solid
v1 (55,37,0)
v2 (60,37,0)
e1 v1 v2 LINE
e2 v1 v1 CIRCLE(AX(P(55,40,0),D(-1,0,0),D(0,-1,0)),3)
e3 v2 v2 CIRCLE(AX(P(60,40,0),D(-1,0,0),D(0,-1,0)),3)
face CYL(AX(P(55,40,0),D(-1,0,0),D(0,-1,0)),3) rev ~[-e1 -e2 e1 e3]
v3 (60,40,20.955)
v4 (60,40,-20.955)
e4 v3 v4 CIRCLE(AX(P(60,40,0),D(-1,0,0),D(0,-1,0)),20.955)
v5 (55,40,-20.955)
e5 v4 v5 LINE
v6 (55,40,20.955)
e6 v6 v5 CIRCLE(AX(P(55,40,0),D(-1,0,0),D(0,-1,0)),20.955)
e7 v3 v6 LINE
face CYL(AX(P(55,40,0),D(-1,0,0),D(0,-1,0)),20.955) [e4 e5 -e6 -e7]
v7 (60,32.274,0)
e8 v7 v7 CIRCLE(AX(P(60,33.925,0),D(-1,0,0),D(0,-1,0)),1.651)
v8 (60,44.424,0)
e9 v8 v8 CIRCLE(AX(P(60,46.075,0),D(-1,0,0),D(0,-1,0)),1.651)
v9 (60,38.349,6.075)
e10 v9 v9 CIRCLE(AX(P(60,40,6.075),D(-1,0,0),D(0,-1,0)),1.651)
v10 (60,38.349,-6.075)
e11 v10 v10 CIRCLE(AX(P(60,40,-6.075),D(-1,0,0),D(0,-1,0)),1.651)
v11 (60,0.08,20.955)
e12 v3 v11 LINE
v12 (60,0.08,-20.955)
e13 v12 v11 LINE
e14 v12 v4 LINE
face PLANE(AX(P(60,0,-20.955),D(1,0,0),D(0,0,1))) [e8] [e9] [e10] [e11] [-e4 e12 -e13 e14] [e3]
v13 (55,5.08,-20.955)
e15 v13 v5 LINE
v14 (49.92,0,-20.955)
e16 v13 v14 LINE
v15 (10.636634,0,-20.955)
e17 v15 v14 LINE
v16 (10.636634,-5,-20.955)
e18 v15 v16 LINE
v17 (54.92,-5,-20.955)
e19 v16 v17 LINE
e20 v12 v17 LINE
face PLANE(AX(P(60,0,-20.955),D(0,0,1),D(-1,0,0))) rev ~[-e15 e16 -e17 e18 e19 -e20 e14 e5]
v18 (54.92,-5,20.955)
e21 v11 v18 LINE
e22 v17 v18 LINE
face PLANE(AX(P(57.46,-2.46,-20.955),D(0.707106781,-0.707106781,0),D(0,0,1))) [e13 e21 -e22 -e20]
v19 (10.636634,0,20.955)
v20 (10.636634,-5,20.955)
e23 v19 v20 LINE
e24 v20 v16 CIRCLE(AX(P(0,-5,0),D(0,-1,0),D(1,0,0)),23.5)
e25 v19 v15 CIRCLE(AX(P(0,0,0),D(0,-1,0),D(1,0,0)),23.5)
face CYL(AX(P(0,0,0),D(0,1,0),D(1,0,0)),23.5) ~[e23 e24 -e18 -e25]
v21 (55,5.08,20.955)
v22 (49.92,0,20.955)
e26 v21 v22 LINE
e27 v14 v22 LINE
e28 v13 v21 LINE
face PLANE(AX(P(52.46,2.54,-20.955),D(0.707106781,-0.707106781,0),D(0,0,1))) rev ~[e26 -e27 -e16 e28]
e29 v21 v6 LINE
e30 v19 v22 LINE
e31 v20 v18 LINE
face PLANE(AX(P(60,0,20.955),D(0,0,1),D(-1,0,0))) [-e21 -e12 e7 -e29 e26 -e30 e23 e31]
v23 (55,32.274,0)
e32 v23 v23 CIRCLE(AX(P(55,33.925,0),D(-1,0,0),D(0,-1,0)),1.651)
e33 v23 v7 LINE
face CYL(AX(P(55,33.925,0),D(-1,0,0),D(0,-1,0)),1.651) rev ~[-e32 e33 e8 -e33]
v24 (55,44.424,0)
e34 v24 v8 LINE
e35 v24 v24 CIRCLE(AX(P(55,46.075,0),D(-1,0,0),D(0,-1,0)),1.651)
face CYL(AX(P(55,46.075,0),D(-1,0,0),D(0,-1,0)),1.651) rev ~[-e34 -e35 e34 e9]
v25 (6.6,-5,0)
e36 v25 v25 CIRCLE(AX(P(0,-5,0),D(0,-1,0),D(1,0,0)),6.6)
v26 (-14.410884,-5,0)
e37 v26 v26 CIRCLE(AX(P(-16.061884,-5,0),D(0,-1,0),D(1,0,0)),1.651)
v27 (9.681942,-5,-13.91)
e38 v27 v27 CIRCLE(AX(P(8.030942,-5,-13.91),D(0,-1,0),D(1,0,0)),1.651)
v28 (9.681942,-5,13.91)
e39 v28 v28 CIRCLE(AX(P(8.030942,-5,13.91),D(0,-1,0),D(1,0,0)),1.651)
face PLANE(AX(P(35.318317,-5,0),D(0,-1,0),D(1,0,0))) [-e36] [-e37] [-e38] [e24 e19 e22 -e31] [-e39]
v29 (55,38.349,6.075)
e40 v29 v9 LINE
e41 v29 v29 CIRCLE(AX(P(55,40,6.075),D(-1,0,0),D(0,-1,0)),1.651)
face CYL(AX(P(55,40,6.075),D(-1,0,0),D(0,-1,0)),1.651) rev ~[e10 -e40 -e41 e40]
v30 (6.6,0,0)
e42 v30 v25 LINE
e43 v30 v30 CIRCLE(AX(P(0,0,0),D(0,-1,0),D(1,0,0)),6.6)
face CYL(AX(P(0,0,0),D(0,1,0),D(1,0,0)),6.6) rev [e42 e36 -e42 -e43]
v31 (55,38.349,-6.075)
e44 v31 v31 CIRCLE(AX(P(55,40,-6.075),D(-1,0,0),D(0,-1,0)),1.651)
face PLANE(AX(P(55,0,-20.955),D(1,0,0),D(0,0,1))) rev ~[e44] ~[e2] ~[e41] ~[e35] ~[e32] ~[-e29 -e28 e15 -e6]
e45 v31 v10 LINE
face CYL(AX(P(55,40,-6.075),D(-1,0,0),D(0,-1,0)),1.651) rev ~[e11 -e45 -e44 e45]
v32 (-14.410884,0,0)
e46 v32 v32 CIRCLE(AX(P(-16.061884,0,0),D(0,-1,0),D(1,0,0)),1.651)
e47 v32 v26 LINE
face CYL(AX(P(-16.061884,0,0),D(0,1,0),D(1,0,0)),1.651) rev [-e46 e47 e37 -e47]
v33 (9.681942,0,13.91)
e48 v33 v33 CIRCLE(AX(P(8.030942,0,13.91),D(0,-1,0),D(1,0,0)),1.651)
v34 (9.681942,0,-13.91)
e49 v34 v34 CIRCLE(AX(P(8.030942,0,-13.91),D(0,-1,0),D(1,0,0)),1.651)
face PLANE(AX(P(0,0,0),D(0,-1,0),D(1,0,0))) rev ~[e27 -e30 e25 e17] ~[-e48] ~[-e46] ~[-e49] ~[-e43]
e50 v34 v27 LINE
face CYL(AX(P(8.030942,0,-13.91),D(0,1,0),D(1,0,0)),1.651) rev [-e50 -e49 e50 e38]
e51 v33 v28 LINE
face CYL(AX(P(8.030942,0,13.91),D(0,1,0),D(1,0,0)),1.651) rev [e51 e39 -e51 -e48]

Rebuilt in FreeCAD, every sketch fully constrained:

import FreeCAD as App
import Part
import Sketcher
from FreeCAD import Vector


def edges_at(feature, points):
    """Names of the edges that pass closest to the given points."""
    edges = feature.Shape.Edges
    near = lambda p: min(range(len(edges)), key=lambda i: edges[i].distToShape(Part.Vertex(*p))[0])
    return sorted({f"Edge{near(p) + 1}" for p in points})

doc = App.newDocument("Part")
body = doc.addObject("PartDesign::Body", "Body")

# Sketch on XZ plane
sketch1 = body.newObject("Sketcher::SketchObject", "Sketch")
sketch1.AttachmentSupport = (doc.getObject("XZ_Plane"), [""])
sketch1.MapMode = "FlatFace"
sketch1.addGeometry(Part.Circle(Vector(0, 0, 0), Vector(0, 0, 1), 23.5), False)
sketch1.addGeometry(Part.Circle(Vector(8, -13.9, 0), Vector(0, 0, 1), 1.7), False)
sketch1.addGeometry(Part.Circle(Vector(-16.1, 0, 0), Vector(0, 0, 1), 1.7), False)
sketch1.addGeometry(Part.Circle(Vector(0, 0, 0), Vector(0, 0, 1), 6.6), False)
sketch1.addGeometry(Part.Circle(Vector(8, 13.9, 0), Vector(0, 0, 1), 1.7), False)
sketch1.addConstraint(Sketcher.Constraint("Coincident", 0, 3, -1, 1))
sketch1.addConstraint(Sketcher.Constraint("Coincident", 3, 3, -1, 1))
sketch1.addConstraint(Sketcher.Constraint("Equal", 1, 2))
sketch1.addConstraint(Sketcher.Constraint("Equal", 2, 4))
sketch1.addConstraint(Sketcher.Constraint("Symmetric", 1, 3, 4, 3, -1))
sketch1.addConstraint(Sketcher.Constraint("PointOnObject", 2, 3, -1))
sketch1.addConstraint(Sketcher.Constraint("Diameter", 0, 47.0))
sketch1.addConstraint(Sketcher.Constraint("Diameter", 3, 13.2))
sketch1.addConstraint(Sketcher.Constraint("Diameter", 1, 3.302))
sketch1.addConstraint(Sketcher.Constraint("DistanceY", 1, 3, -1, 1, 13.91))
sketch1.addConstraint(Sketcher.Constraint("DistanceX", -1, 1, 1, 3, 8.030942))
sketch1.addConstraint(Sketcher.Constraint("DistanceX", 2, 3, -1, 1, 16.061884))
pad1 = body.newObject("PartDesign::Pad", "Pad")
pad1.Profile = sketch1
pad1.Length = 5

# Sketch on XZ plane
sketch2 = body.newObject("Sketcher::SketchObject", "Sketch001")
sketch2.AttachmentSupport = (doc.getObject("XZ_Plane"), [""])
sketch2.MapMode = "FlatFace"
sketch2.addGeometry(Part.LineSegment(Vector(11, 21, 0), Vector(11, -21, 0)), False)
sketch2.addGeometry(Part.LineSegment(Vector(11, -21, 0), Vector(60, -21, 0)), False)
sketch2.addGeometry(Part.LineSegment(Vector(60, -21, 0), Vector(60, 21, 0)), False)
sketch2.addGeometry(Part.LineSegment(Vector(60, 21, 0), Vector(11, 21, 0)), False)
sketch2.addConstraint(Sketcher.Constraint("Coincident", 0, 2, 1, 1))
sketch2.addConstraint(Sketcher.Constraint("Coincident", 1, 2, 2, 1))
sketch2.addConstraint(Sketcher.Constraint("Coincident", 2, 2, 3, 1))
sketch2.addConstraint(Sketcher.Constraint("Coincident", 3, 2, 0, 1))
sketch2.addConstraint(Sketcher.Constraint("Vertical", 0))
sketch2.addConstraint(Sketcher.Constraint("Horizontal", 1))
sketch2.addConstraint(Sketcher.Constraint("Vertical", 2))
sketch2.addConstraint(Sketcher.Constraint("Horizontal", 3))
sketch2.addConstraint(Sketcher.Constraint("DistanceX", -1, 1, 1, 2, 60.0))
sketch2.addConstraint(Sketcher.Constraint("DistanceY", 0, 2, 0, 1, 41.91))
sketch2.addConstraint(Sketcher.Constraint("DistanceY", 0, 2, -1, 1, 20.955))
sketch2.addConstraint(Sketcher.Constraint("DistanceX", 1, 1, 1, 2, 49.363366))
pad2 = body.newObject("PartDesign::Pad", "Pad001")
pad2.Profile = sketch2
pad2.Length = 5

# Sketch on XZ plane
sketch3 = body.newObject("Sketcher::SketchObject", "Sketch002")
sketch3.AttachmentSupport = (doc.getObject("XZ_Plane"), [""])
sketch3.MapMode = "FlatFace"
sketch3.addGeometry(Part.LineSegment(Vector(60, 21, 0), Vector(60, -21, 0)), False)
sketch3.addGeometry(Part.LineSegment(Vector(60, -21, 0), Vector(55, -21, 0)), False)
sketch3.addGeometry(Part.LineSegment(Vector(55, -21, 0), Vector(55, 21, 0)), False)
sketch3.addGeometry(Part.LineSegment(Vector(55, 21, 0), Vector(60, 21, 0)), False)
sketch3.addConstraint(Sketcher.Constraint("Coincident", 0, 2, 1, 1))
sketch3.addConstraint(Sketcher.Constraint("Coincident", 1, 2, 2, 1))
sketch3.addConstraint(Sketcher.Constraint("Coincident", 2, 2, 3, 1))
sketch3.addConstraint(Sketcher.Constraint("Coincident", 3, 2, 0, 1))
sketch3.addConstraint(Sketcher.Constraint("Vertical", 0))
sketch3.addConstraint(Sketcher.Constraint("Horizontal", 1))
sketch3.addConstraint(Sketcher.Constraint("Vertical", 2))
sketch3.addConstraint(Sketcher.Constraint("Horizontal", 3))
sketch3.addConstraint(Sketcher.Constraint("DistanceX", 1, 2, 1, 1, 5.0))
sketch3.addConstraint(Sketcher.Constraint("DistanceX", -1, 1, 0, 2, 60.0))
sketch3.addConstraint(Sketcher.Constraint("DistanceY", 0, 2, 0, 1, 41.91))
sketch3.addConstraint(Sketcher.Constraint("DistanceY", 0, 2, -1, 1, 20.955))
pad3 = body.newObject("PartDesign::Pad", "Pad002")
pad3.Profile = sketch3
pad3.Length = 40
pad3.Reversed = True

# Sketch on YZ plane
sketch4 = body.newObject("Sketcher::SketchObject", "Sketch003")
sketch4.AttachmentSupport = (doc.getObject("YZ_Plane"), [""])
sketch4.MapMode = "FlatFace"
sketch4.AttachmentOffset = App.Placement(Vector(0, 0, 55), App.Rotation())
sketch4.addGeometry(Part.Circle(Vector(40, 0, 0), Vector(0, 0, 1), 21), False)
sketch4.addConstraint(Sketcher.Constraint("PointOnObject", 0, 3, -1))
sketch4.addConstraint(Sketcher.Constraint("Diameter", 0, 41.91))
sketch4.addConstraint(Sketcher.Constraint("DistanceX", -1, 1, 0, 3, 40.0))
pad4 = body.newObject("PartDesign::Pad", "Pad003")
pad4.Profile = sketch4
pad4.Length = 5

# Sketch on YZ plane
sketch5 = body.newObject("Sketcher::SketchObject", "Sketch004")
sketch5.AttachmentSupport = (doc.getObject("YZ_Plane"), [""])
sketch5.MapMode = "FlatFace"
sketch5.AttachmentOffset = App.Placement(Vector(0, 0, 55), App.Rotation())
sketch5.addGeometry(Part.Circle(Vector(40, 6.1, 0), Vector(0, 0, 1), 1.7), False)
sketch5.addGeometry(Part.Circle(Vector(46.1, 0, 0), Vector(0, 0, 1), 1.7), False)
sketch5.addGeometry(Part.Circle(Vector(40, -6.1, 0), Vector(0, 0, 1), 1.7), False)
sketch5.addGeometry(Part.Circle(Vector(33.9, 0, 0), Vector(0, 0, 1), 1.7), False)
sketch5.addGeometry(Part.Circle(Vector(40, 0, 0), Vector(0, 0, 1), 3), False)
sketch5.addConstraint(Sketcher.Constraint("Equal", 0, 1))
sketch5.addConstraint(Sketcher.Constraint("Equal", 1, 2))
sketch5.addConstraint(Sketcher.Constraint("Equal", 2, 3))
sketch5.addConstraint(Sketcher.Constraint("Symmetric", 0, 3, 2, 3, -1))
sketch5.addConstraint(Sketcher.Constraint("PointOnObject", 1, 3, -1))
sketch5.addConstraint(Sketcher.Constraint("PointOnObject", 3, 3, -1))
sketch5.addConstraint(Sketcher.Constraint("PointOnObject", 4, 3, -1))
sketch5.addConstraint(Sketcher.Constraint("Vertical", 2, 3, 4, 3))
sketch5.addConstraint(Sketcher.Constraint("Diameter", 4, 6.0))
sketch5.addConstraint(Sketcher.Constraint("Diameter", 0, 3.302))
sketch5.addConstraint(Sketcher.Constraint("DistanceX", -1, 1, 0, 3, 40.0))
sketch5.addConstraint(Sketcher.Constraint("DistanceY", 2, 3, 0, 3, 12.15))
sketch5.addConstraint(Sketcher.Constraint("DistanceX", 3, 3, 1, 3, 12.15))
sketch5.addConstraint(Sketcher.Constraint("DistanceX", -1, 1, 1, 3, 46.075))
pocket1 = body.newObject("PartDesign::Pocket", "Pocket")
pocket1.Profile = sketch5
pocket1.Length = 25.4
pocket1.Reversed = True
doc.recompute()

chamfer = body.newObject("PartDesign::Chamfer", "Chamfer")
chamfer.Base = (pocket1, edges_at(pocket1, [(55, 0, 0), (60, -5, 0)]))
chamfer.Size = 5.08

doc.recompute()
